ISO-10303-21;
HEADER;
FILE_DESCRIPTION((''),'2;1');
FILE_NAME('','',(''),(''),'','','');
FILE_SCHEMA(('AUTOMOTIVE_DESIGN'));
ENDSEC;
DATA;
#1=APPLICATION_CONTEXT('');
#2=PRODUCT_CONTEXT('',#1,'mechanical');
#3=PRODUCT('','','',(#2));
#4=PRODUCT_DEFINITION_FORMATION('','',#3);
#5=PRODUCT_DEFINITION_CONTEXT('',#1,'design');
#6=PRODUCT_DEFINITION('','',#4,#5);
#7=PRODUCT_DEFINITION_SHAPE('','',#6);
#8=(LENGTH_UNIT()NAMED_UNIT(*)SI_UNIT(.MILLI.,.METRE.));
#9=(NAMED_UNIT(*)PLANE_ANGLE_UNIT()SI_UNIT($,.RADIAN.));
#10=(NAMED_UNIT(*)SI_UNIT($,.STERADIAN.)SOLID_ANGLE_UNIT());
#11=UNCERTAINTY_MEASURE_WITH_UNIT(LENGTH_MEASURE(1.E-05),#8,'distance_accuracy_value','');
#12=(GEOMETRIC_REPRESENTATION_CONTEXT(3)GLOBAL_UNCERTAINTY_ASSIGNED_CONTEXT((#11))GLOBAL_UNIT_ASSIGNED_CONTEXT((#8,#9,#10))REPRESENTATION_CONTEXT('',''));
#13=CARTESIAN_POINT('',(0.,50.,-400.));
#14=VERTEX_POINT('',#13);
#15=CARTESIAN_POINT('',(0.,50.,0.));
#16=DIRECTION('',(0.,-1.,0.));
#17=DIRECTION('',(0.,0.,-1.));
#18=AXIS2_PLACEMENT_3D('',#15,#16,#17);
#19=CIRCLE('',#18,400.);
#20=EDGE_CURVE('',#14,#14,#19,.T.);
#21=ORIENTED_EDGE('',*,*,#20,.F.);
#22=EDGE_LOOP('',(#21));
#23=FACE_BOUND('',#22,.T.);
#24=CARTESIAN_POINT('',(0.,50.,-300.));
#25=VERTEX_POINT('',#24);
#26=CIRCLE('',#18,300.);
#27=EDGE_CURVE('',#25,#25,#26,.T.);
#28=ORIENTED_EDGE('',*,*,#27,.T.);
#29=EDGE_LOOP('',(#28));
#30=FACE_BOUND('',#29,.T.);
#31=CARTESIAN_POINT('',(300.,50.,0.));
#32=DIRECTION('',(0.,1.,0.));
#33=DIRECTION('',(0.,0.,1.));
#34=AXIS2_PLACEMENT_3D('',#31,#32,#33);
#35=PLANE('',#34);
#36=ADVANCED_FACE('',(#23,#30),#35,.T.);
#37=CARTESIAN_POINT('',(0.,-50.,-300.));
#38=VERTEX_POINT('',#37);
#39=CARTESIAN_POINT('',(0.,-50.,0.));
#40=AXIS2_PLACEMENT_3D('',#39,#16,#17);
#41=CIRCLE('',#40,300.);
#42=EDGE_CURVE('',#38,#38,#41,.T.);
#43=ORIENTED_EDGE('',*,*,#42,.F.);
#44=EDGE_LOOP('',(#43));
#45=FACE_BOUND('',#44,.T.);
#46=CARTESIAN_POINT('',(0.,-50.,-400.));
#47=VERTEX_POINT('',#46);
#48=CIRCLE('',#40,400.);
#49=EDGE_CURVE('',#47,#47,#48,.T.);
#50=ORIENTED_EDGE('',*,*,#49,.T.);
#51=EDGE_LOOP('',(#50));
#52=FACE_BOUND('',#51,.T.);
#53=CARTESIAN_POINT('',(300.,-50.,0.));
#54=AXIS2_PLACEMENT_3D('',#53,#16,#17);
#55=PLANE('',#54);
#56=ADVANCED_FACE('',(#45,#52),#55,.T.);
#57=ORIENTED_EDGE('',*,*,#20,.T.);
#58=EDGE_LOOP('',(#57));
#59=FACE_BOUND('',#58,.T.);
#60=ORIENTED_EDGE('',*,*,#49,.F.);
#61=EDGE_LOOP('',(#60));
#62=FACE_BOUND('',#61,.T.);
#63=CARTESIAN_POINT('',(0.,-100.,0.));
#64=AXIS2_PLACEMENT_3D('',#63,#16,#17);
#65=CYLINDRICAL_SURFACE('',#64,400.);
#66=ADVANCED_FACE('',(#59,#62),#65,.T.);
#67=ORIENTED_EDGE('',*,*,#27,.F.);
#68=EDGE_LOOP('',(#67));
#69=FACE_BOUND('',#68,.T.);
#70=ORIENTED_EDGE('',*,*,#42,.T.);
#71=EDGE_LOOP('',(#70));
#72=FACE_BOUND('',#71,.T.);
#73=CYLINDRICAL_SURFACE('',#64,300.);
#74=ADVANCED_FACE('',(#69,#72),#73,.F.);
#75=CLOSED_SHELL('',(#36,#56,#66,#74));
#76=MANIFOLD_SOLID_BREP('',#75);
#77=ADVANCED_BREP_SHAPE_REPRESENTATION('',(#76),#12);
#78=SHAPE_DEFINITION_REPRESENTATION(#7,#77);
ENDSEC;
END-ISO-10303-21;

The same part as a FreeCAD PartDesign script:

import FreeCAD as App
import Part
import Sketcher
from FreeCAD import Vector
Q = App.Units.Quantity

doc = App.newDocument("Part")
body = doc.addObject("PartDesign::Body", "Body")

# Sketch on XY plane
sketch1 = body.newObject("Sketcher::SketchObject", "Sketch")
sketch1.AttachmentSupport = (doc.getObject("XY_Plane"), [""])
sketch1.MapMode = "FlatFace"
sketch1.addGeometry(Part.LineSegment(Vector(300, 50, 0), Vector(300, -50, 0)), False)
sketch1.addGeometry(Part.LineSegment(Vector(300, -50, 0), Vector(400, -50, 0)), False)
sketch1.addGeometry(Part.LineSegment(Vector(400, -50, 0), Vector(400, 50, 0)), False)
sketch1.addGeometry(Part.LineSegment(Vector(400, 50, 0), Vector(300, 50, 0)), False)
sketch1.addConstraint(Sketcher.Constraint("Coincident", 0, 2, 1, 1))
sketch1.addConstraint(Sketcher.Constraint("Coincident", 1, 2, 2, 1))
sketch1.addConstraint(Sketcher.Constraint("Coincident", 2, 2, 3, 1))
sketch1.addConstraint(Sketcher.Constraint("Coincident", 3, 2, 0, 1))
sketch1.addConstraint(Sketcher.Constraint("Vertical", 0))
sketch1.addConstraint(Sketcher.Constraint("Horizontal", 1))
sketch1.addConstraint(Sketcher.Constraint("Vertical", 2))
sketch1.addConstraint(Sketcher.Constraint("Horizontal", 3))
sketch1.addConstraint(Sketcher.Constraint("Equal", 3, 0))
sketch1.addConstraint(Sketcher.Constraint("DistanceX", 1, 1, 1, 2, Q("100 mm")))
sketch1.addConstraint(Sketcher.Constraint("DistanceX", -1, 1, 0, 2, Q("300 mm")))
sketch1.addConstraint(Sketcher.Constraint("DistanceY", 0, 2, -1, 1, Q("50 mm")))
revolution = body.newObject("PartDesign::Revolution", "Revolution")
revolution.Profile = sketch1
revolution.ReferenceAxis = (sketch1, ["V_Axis"])
revolution.Angle = 360

doc.recompute()
